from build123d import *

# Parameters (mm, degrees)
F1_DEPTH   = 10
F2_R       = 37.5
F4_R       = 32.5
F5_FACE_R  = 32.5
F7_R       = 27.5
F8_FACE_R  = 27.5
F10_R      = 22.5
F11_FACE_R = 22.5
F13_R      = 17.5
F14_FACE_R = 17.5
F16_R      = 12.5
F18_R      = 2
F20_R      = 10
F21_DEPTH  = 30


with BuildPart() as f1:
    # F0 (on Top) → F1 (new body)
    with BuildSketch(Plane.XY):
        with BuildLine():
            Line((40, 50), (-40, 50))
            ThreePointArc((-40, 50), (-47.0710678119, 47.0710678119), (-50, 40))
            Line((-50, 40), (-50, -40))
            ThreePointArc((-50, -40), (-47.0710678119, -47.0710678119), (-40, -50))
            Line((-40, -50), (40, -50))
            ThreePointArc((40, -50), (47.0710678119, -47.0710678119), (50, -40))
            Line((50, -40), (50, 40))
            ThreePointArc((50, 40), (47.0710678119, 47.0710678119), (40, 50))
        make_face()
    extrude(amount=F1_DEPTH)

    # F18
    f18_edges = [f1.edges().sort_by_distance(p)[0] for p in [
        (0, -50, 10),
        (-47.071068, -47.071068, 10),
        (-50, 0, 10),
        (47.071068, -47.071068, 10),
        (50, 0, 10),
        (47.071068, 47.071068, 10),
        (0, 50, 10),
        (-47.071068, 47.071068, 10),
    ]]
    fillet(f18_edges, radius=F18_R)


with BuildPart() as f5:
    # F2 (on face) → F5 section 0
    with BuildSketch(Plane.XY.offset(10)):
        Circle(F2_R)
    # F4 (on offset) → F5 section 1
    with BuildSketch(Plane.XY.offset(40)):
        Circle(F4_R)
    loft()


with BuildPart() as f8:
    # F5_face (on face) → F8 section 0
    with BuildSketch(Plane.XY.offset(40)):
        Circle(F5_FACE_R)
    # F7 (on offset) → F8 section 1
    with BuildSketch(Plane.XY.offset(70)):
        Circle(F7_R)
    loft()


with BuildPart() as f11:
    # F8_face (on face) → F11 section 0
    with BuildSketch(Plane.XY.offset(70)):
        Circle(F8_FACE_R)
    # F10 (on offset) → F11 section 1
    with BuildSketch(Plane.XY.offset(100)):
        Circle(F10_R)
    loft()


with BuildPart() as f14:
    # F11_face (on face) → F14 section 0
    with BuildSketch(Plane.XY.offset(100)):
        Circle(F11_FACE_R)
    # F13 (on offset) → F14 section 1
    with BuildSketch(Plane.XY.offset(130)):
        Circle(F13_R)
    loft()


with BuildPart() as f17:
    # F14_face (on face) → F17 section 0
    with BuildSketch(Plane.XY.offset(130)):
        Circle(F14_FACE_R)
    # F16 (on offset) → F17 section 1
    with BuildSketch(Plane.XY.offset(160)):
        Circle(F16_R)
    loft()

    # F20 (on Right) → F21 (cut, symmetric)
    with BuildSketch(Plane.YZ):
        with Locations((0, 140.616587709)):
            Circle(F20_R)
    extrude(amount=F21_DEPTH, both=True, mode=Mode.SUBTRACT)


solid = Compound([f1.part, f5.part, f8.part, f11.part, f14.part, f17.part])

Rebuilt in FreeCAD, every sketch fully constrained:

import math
import FreeCAD as App
import Part
import Sketcher
Q = App.Units.Quantity


def edges_at(feature, points):
    """Names of the edges that pass closest to the given points."""
    edges = feature.Shape.Edges
    near = lambda p: min(range(len(edges)), key=lambda i: edges[i].distToShape(Part.Vertex(*p))[0])
    return sorted({f"Edge{near(p) + 1}" for p in points})

doc = App.newDocument("Part")
body = doc.addObject("PartDesign::Body", "Body")

# Sketch on XY plane
sketch1 = body.newObject("Sketcher::SketchObject", "Sketch")
sketch1.AttachmentSupport = (doc.getObject("XY_Plane"), [""])
sketch1.MapMode = "FlatFace"
sketch1.addGeometry(Part.LineSegment(App.Vector(40, 50, 0), App.Vector(-40, 50, 0)), False)
sketch1.addGeometry(Part.ArcOfCircle(Part.Circle(App.Vector(-40, 40, 0), App.Vector(0, 0, 1), 10), math.radians(90), math.radians(180)), False)
sketch1.addGeometry(Part.LineSegment(App.Vector(-50, 40, 0), App.Vector(-50, -40, 0)), False)
sketch1.addGeometry(Part.ArcOfCircle(Part.Circle(App.Vector(-40, -40, 0), App.Vector(0, 0, 1), 10), math.radians(180), math.radians(270)), False)
sketch1.addGeometry(Part.LineSegment(App.Vector(-40, -50, 0), App.Vector(40, -50, 0)), False)
sketch1.addGeometry(Part.ArcOfCircle(Part.Circle(App.Vector(40, -40, 0), App.Vector(0, 0, 1), 10), math.radians(-90), math.radians(0)), False)
sketch1.addGeometry(Part.LineSegment(App.Vector(50, -40, 0), App.Vector(50, 40, 0)), False)
sketch1.addGeometry(Part.ArcOfCircle(Part.Circle(App.Vector(40, 40, 0), App.Vector(0, 0, 1), 10), math.radians(0), math.radians(90)), False)
sketch1.addConstraint(Sketcher.Constraint("Tangent", 0, 2, 1, 1))
sketch1.addConstraint(Sketcher.Constraint("Tangent", 1, 2, 2, 1))
sketch1.addConstraint(Sketcher.Constraint("Tangent", 2, 2, 3, 1))
sketch1.addConstraint(Sketcher.Constraint("Tangent", 3, 2, 4, 1))
sketch1.addConstraint(Sketcher.Constraint("Tangent", 4, 2, 5, 1))
sketch1.addConstraint(Sketcher.Constraint("Tangent", 5, 2, 6, 1))
sketch1.addConstraint(Sketcher.Constraint("Tangent", 6, 2, 7, 1))
sketch1.addConstraint(Sketcher.Constraint("Tangent", 7, 2, 0, 1))
sketch1.addConstraint(Sketcher.Constraint("Horizontal", 0))
sketch1.addConstraint(Sketcher.Constraint("Vertical", 2))
sketch1.addConstraint(Sketcher.Constraint("Horizontal", 4))
sketch1.addConstraint(Sketcher.Constraint("Vertical", 6))
sketch1.addConstraint(Sketcher.Constraint("Equal", 1, 3))
sketch1.addConstraint(Sketcher.Constraint("Equal", 3, 5))
sketch1.addConstraint(Sketcher.Constraint("Equal", 5, 7))
sketch1.addConstraint(Sketcher.Constraint("Symmetric", 1, 3, 5, 3, -1, 1))
sketch1.addConstraint(Sketcher.Constraint("Equal", 4, 2))
sketch1.addConstraint(Sketcher.Constraint("Radius", 1, Q("10 mm")))
sketch1.addConstraint(Sketcher.Constraint("DistanceX", 0, 2, 0, 1, Q("80 mm")))
pad1 = body.newObject("PartDesign::Pad", "Pad")
pad1.Profile = sketch1
pad1.Length = 10
doc.recompute()

fillet = body.newObject("PartDesign::Fillet", "Fillet")
fillet.Base = (pad1, edges_at(pad1, [
    (0, -50, 10),
    (-47.071, -47.071, 10),
    (-50, 0, 10),
    (47.071, -47.071, 10),
    (50, 0, 10),
    (47.071, 47.071, 10),
    (0, 50, 10),
    (-47.071, 47.071, 10),
]))
fillet.Radius = 2
body2 = doc.addObject("PartDesign::Body", "Body001")

# Sketch on XY plane
sketch2 = body2.newObject("Sketcher::SketchObject", "Sketch001")
sketch2.AttachmentSupport = (doc.getObject("XY_Plane001"), [""])
sketch2.MapMode = "FlatFace"
sketch2.AttachmentOffset = App.Placement(App.Vector(0, 0, 10), App.Rotation())
sketch2.addGeometry(Part.Circle(App.Vector(0, 0, 0), App.Vector(0, 0, 1), 38), False)
sketch2.addConstraint(Sketcher.Constraint("Coincident", 0, 3, -1, 1))
sketch2.addConstraint(Sketcher.Constraint("Diameter", 0, Q("75 mm")))

# Sketch on XY plane
sketch3 = body2.newObject("Sketcher::SketchObject", "Sketch002")
sketch3.AttachmentSupport = (doc.getObject("XY_Plane001"), [""])
sketch3.MapMode = "FlatFace"
sketch3.AttachmentOffset = App.Placement(App.Vector(0, 0, 40), App.Rotation())
sketch3.addGeometry(Part.Circle(App.Vector(0, 0, 0), App.Vector(0, 0, 1), 32), False)
sketch3.addConstraint(Sketcher.Constraint("Coincident", 0, 3, -1, 1))
sketch3.addConstraint(Sketcher.Constraint("Diameter", 0, Q("65 mm")))

additiveloft = body2.newObject("PartDesign::AdditiveLoft", "AdditiveLoft")
additiveloft.Profile = sketch2
additiveloft.Sections = [sketch3]
body3 = doc.addObject("PartDesign::Body", "Body002")

# Sketch on XY plane
sketch4 = body3.newObject("Sketcher::SketchObject", "Sketch003")
sketch4.AttachmentSupport = (doc.getObject("XY_Plane002"), [""])
sketch4.MapMode = "FlatFace"
sketch4.AttachmentOffset = App.Placement(App.Vector(0, 0, 40), App.Rotation())
sketch4.addGeometry(Part.Circle(App.Vector(0, 0, 0), App.Vector(0, 0, 1), 32), False)
sketch4.addConstraint(Sketcher.Constraint("Coincident", 0, 3, -1, 1))
sketch4.addConstraint(Sketcher.Constraint("Diameter", 0, Q("65 mm")))

# Sketch on XY plane
sketch5 = body3.newObject("Sketcher::SketchObject", "Sketch004")
sketch5.AttachmentSupport = (doc.getObject("XY_Plane002"), [""])
sketch5.MapMode = "FlatFace"
sketch5.AttachmentOffset = App.Placement(App.Vector(0, 0, 70), App.Rotation())
sketch5.addGeometry(Part.Circle(App.Vector(0, 0, 0), App.Vector(0, 0, 1), 28), False)
sketch5.addConstraint(Sketcher.Constraint("Coincident", 0, 3, -1, 1))
sketch5.addConstraint(Sketcher.Constraint("Diameter", 0, Q("55 mm")))

additiveloft2 = body3.newObject("PartDesign::AdditiveLoft", "AdditiveLoft001")
additiveloft2.Profile = sketch4
additiveloft2.Sections = [sketch5]
body4 = doc.addObject("PartDesign::Body", "Body003")

# Sketch on XY plane
sketch6 = body4.newObject("Sketcher::SketchObject", "Sketch005")
sketch6.AttachmentSupport = (doc.getObject("XY_Plane003"), [""])
sketch6.MapMode = "FlatFace"
sketch6.AttachmentOffset = App.Placement(App.Vector(0, 0, 70), App.Rotation())
sketch6.addGeometry(Part.Circle(App.Vector(0, 0, 0), App.Vector(0, 0, 1), 28), False)
sketch6.addConstraint(Sketcher.Constraint("Coincident", 0, 3, -1, 1))
sketch6.addConstraint(Sketcher.Constraint("Diameter", 0, Q("55 mm")))

# Sketch on XY plane
sketch7 = body4.newObject("Sketcher::SketchObject", "Sketch006")
sketch7.AttachmentSupport = (doc.getObject("XY_Plane003"), [""])
sketch7.MapMode = "FlatFace"
sketch7.AttachmentOffset = App.Placement(App.Vector(0, 0, 100), App.Rotation())
sketch7.addGeometry(Part.Circle(App.Vector(0, 0, 0), App.Vector(0, 0, 1), 22), False)
sketch7.addConstraint(Sketcher.Constraint("Coincident", 0, 3, -1, 1))
sketch7.addConstraint(Sketcher.Constraint("Diameter", 0, Q("45 mm")))

additiveloft3 = body4.newObject("PartDesign::AdditiveLoft", "AdditiveLoft002")
additiveloft3.Profile = sketch6
additiveloft3.Sections = [sketch7]
body5 = doc.addObject("PartDesign::Body", "Body004")

# Sketch on XY plane
sketch8 = body5.newObject("Sketcher::SketchObject", "Sketch007")
sketch8.AttachmentSupport = (doc.getObject("XY_Plane004"), [""])
sketch8.MapMode = "FlatFace"
sketch8.AttachmentOffset = App.Placement(App.Vector(0, 0, 100), App.Rotation())
sketch8.addGeometry(Part.Circle(App.Vector(0, 0, 0), App.Vector(0, 0, 1), 22), False)
sketch8.addConstraint(Sketcher.Constraint("Coincident", 0, 3, -1, 1))
sketch8.addConstraint(Sketcher.Constraint("Diameter", 0, Q("45 mm")))

# Sketch on XY plane
sketch9 = body5.newObject("Sketcher::SketchObject", "Sketch008")
sketch9.AttachmentSupport = (doc.getObject("XY_Plane004"), [""])
sketch9.MapMode = "FlatFace"
sketch9.AttachmentOffset = App.Placement(App.Vector(0, 0, 130), App.Rotation())
sketch9.addGeometry(Part.Circle(App.Vector(0, 0, 0), App.Vector(0, 0, 1), 18), False)
sketch9.addConstraint(Sketcher.Constraint("Coincident", 0, 3, -1, 1))
sketch9.addConstraint(Sketcher.Constraint("Diameter", 0, Q("35 mm")))

additiveloft4 = body5.newObject("PartDesign::AdditiveLoft", "AdditiveLoft003")
additiveloft4.Profile = sketch8
additiveloft4.Sections = [sketch9]
body6 = doc.addObject("PartDesign::Body", "Body005")

# Sketch on XY plane
sketch10 = body6.newObject("Sketcher::SketchObject", "Sketch009")
sketch10.AttachmentSupport = (doc.getObject("XY_Plane005"), [""])
sketch10.MapMode = "FlatFace"
sketch10.AttachmentOffset = App.Placement(App.Vector(0, 0, 130), App.Rotation())
sketch10.addGeometry(Part.Circle(App.Vector(0, 0, 0), App.Vector(0, 0, 1), 18), False)
sketch10.addConstraint(Sketcher.Constraint("Coincident", 0, 3, -1, 1))
sketch10.addConstraint(Sketcher.Constraint("Diameter", 0, Q("35 mm")))

# Sketch on XY plane
sketch11 = body6.newObject("Sketcher::SketchObject", "Sketch010")
sketch11.AttachmentSupport = (doc.getObject("XY_Plane005"), [""])
sketch11.MapMode = "FlatFace"
sketch11.AttachmentOffset = App.Placement(App.Vector(0, 0, 160), App.Rotation())
sketch11.addGeometry(Part.Circle(App.Vector(0, 0, 0), App.Vector(0, 0, 1), 12), False)
sketch11.addConstraint(Sketcher.Constraint("Coincident", 0, 3, -1, 1))
sketch11.addConstraint(Sketcher.Constraint("Diameter", 0, Q("25 mm")))

additiveloft5 = body6.newObject("PartDesign::AdditiveLoft", "AdditiveLoft004")
additiveloft5.Profile = sketch10
additiveloft5.Sections = [sketch11]

# Sketch on YZ plane
sketch12 = body6.newObject("Sketcher::SketchObject", "Sketch011")
sketch12.AttachmentSupport = (doc.getObject("YZ_Plane005"), [""])
sketch12.MapMode = "FlatFace"
sketch12.addGeometry(Part.Circle(App.Vector(0, 141, 0), App.Vector(0, 0, 1), 10), False)
sketch12.addConstraint(Sketcher.Constraint("PointOnObject", 0, 3, -2))
sketch12.addConstraint(Sketcher.Constraint("Diameter", 0, Q("20 mm")))
sketch12.addConstraint(Sketcher.Constraint("DistanceY", -1, 1, 0, 3, Q("140.616588 mm")))
pocket1 = body6.newObject("PartDesign::Pocket", "Pocket")
pocket1.Profile = sketch12
pocket1.Length = 60
pocket1.Midplane = True

doc.recompute()
